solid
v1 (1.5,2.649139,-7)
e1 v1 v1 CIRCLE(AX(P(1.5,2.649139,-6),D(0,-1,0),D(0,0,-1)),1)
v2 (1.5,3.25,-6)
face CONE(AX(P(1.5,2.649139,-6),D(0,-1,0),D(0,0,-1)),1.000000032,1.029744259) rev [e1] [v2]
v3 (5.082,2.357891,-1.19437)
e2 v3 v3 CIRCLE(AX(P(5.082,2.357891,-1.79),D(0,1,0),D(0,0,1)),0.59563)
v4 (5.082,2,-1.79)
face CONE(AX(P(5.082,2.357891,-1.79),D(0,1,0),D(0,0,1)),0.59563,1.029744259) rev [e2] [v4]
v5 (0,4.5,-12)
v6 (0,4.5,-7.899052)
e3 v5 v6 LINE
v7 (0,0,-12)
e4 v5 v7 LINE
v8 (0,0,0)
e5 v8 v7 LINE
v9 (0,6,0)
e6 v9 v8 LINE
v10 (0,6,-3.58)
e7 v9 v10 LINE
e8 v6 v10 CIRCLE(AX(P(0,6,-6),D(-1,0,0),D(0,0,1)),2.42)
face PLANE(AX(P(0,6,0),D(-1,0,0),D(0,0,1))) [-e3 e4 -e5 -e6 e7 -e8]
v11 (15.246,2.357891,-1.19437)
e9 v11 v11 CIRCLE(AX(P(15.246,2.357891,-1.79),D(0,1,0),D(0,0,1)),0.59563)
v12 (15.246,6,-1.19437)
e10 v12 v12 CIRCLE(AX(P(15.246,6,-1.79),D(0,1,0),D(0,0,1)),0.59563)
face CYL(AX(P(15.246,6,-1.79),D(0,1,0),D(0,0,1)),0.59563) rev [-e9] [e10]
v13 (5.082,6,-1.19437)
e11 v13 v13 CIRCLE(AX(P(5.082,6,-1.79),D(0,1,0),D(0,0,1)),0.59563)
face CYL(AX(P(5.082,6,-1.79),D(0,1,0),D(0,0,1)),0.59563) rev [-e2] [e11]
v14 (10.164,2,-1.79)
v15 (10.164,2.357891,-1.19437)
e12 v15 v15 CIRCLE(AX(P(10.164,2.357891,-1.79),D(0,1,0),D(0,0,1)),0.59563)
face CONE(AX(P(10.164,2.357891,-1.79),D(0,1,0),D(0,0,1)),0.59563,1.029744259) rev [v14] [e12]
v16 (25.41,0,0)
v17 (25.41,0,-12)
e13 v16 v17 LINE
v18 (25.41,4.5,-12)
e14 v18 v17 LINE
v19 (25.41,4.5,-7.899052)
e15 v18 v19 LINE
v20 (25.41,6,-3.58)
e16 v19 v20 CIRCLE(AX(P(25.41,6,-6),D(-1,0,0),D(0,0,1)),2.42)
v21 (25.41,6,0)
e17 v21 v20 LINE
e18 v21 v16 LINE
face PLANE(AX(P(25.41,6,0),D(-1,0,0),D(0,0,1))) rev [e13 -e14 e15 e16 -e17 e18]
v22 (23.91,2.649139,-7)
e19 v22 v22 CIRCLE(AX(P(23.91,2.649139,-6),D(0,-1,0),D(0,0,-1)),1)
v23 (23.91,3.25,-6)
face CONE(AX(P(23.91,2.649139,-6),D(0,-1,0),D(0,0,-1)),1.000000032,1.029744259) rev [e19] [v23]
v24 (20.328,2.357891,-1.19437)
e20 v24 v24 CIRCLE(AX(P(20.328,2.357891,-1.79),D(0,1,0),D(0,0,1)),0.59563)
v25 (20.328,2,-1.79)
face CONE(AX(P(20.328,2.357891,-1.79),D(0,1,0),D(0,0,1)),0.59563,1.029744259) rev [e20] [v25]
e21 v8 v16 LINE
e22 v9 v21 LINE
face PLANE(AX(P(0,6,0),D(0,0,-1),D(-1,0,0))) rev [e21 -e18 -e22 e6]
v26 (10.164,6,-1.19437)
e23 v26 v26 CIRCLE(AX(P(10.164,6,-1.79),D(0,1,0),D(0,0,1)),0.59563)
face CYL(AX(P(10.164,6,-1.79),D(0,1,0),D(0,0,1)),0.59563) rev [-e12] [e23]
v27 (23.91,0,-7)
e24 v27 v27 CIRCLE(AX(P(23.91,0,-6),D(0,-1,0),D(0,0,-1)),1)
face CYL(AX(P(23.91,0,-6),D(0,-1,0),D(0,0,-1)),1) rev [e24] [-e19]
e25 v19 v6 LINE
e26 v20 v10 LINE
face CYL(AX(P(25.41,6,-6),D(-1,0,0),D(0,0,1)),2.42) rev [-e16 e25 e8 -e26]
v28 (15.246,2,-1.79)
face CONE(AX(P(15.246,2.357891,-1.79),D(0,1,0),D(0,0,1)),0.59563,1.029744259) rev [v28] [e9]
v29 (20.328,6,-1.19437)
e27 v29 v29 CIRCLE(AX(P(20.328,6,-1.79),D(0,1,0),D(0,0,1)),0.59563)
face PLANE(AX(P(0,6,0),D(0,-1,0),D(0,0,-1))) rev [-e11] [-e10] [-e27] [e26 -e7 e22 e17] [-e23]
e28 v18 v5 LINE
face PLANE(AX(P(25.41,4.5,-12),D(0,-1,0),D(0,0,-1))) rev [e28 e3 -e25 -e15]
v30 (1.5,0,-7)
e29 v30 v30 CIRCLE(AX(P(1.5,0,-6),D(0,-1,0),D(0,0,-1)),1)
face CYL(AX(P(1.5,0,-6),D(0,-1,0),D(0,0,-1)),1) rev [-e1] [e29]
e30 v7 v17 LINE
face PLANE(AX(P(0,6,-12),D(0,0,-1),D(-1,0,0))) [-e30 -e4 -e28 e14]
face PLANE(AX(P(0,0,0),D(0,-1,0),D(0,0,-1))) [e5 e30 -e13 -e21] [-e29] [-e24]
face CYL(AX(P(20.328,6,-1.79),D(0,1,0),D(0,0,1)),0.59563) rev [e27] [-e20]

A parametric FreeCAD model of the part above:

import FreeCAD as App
import Part
import Sketcher

V = App.Vector

doc = App.newDocument("Part")
params = doc.addObject("Spreadsheet::Sheet", "Params")
for row, (alias, value) in enumerate([
    ("sketch1_height", "12 mm"),
    ("sketch1_width", "25.41 mm"),
    ("pad1_length", "6 mm"),
    ("sketch2_diameter", "4.84 mm"),
    ("pocket1_length", "25.41 mm"),
    ("sketch3_width", "1.5 mm"),
    ("pocket2_length", "25.41 mm"),
    ("sketch4_diameter", "2 mm"),
    ("hole_diameter", "2 mm"),
    ("hole_depth", "2.649139 mm"),
    ("hole2_diameter", "1.19126 mm"),
    ("hole2_depth", "3.642109 mm"),
], start=1):
    params.set(f"A{row}", alias)
    params.set(f"B{row}", "=" + value)
    params.setAlias(f"B{row}", alias)

body = doc.addObject("PartDesign::Body", "Body")

# Sketch on XZ plane
sketch1 = body.newObject("Sketcher::SketchObject", "Sketch")
sketch1.AttachmentSupport = (doc.getObject("XZ_Plane"), [""])
sketch1.MapMode = "FlatFace"
sketch1.addGeometry(Part.LineSegment(V(0, -12, 0), V(0, 0, 0)), False)
sketch1.addGeometry(Part.LineSegment(V(0, 0, 0), V(25, 0, 0)), False)
sketch1.addGeometry(Part.LineSegment(V(25, 0, 0), V(25, -12, 0)), False)
sketch1.addGeometry(Part.LineSegment(V(25, -12, 0), V(0, -12, 0)), False)
sketch1.addConstraint(Sketcher.Constraint("Coincident", 0, 2, 1, 1))
sketch1.addConstraint(Sketcher.Constraint("Coincident", 1, 2, 2, 1))
sketch1.addConstraint(Sketcher.Constraint("Coincident", 2, 2, 3, 1))
sketch1.addConstraint(Sketcher.Constraint("Coincident", 3, 2, 0, 1))
sketch1.addConstraint(Sketcher.Constraint("Vertical", 0))
sketch1.addConstraint(Sketcher.Constraint("Horizontal", 1))
sketch1.addConstraint(Sketcher.Constraint("Vertical", 2))
sketch1.addConstraint(Sketcher.Constraint("Horizontal", 3))
sketch1.addConstraint(Sketcher.Constraint("Coincident", 0, 2, -1, 1))
sketch1.addConstraint(Sketcher.Constraint("DistanceY", 0, 1, 0, 2, 12.0))
sketch1.addConstraint(Sketcher.Constraint("DistanceX", 1, 1, 1, 2, 25.41))
sketch1.setExpression("Constraints[9]", "Params.sketch1_height")
sketch1.setExpression("Constraints[10]", "Params.sketch1_width")
pad1 = body.newObject("PartDesign::Pad", "Pad")
pad1.Profile = sketch1
pad1.setExpression("Length", "Params.pad1_length")
pad1.Reversed = True

# Sketch on YZ plane
sketch2 = body.newObject("Sketcher::SketchObject", "Sketch001")
sketch2.AttachmentSupport = (doc.getObject("YZ_Plane"), [""])
sketch2.MapMode = "FlatFace"
sketch2.addGeometry(Part.Circle(V(6, -6, 0), V(0, 0, 1), 2.4), False)
sketch2.addConstraint(Sketcher.Constraint("Diameter", 0, 4.84))
sketch2.addConstraint(Sketcher.Constraint("DistanceX", -1, 1, 0, 3, 6.0))
sketch2.addConstraint(Sketcher.Constraint("DistanceY", 0, 3, -1, 1, 6.0))
sketch2.setExpression("Constraints[0]", "Params.sketch2_diameter")
pocket1 = body.newObject("PartDesign::Pocket", "Pocket")
pocket1.Profile = sketch2
pocket1.setExpression("Length", "Params.pocket1_length")
pocket1.Reversed = True

# Sketch on YZ plane
sketch3 = body.newObject("Sketcher::SketchObject", "Sketch002")
sketch3.AttachmentSupport = (doc.getObject("YZ_Plane"), [""])
sketch3.MapMode = "FlatFace"
sketch3.addGeometry(Part.LineSegment(V(6, -12, 0), V(4.5, -12, 0)), False)
sketch3.addGeometry(Part.LineSegment(V(4.5, -12, 0), V(4.5, -7.5, 0)), False)
sketch3.addGeometry(Part.LineSegment(V(4.5, -7.5, 0), V(6, -7.5, 0)), False)
sketch3.addGeometry(Part.LineSegment(V(6, -7.5, 0), V(6, -12, 0)), False)
sketch3.addConstraint(Sketcher.Constraint("Coincident", 0, 2, 1, 1))
sketch3.addConstraint(Sketcher.Constraint("Coincident", 1, 2, 2, 1))
sketch3.addConstraint(Sketcher.Constraint("Coincident", 2, 2, 3, 1))
sketch3.addConstraint(Sketcher.Constraint("Coincident", 3, 2, 0, 1))
sketch3.addConstraint(Sketcher.Constraint("Horizontal", 0))
sketch3.addConstraint(Sketcher.Constraint("Vertical", 1))
sketch3.addConstraint(Sketcher.Constraint("Horizontal", 2))
sketch3.addConstraint(Sketcher.Constraint("Vertical", 3))
sketch3.addConstraint(Sketcher.Constraint("DistanceX", 0, 2, 0, 1, 1.5))
sketch3.addConstraint(Sketcher.Constraint("DistanceY", 0, 2, -1, 1, 12.0))
sketch3.addConstraint(Sketcher.Constraint("DistanceX", -1, 1, 2, 2, 6.0))
sketch3.addConstraint(Sketcher.Constraint("DistanceY", 1, 1, 1, 2, 4.522419))
sketch3.setExpression("Constraints[8]", "Params.sketch3_width")
pocket2 = body.newObject("PartDesign::Pocket", "Pocket001")
pocket2.Profile = sketch3
pocket2.setExpression("Length", "Params.pocket2_length")
pocket2.Reversed = True

# Sketch on XZ plane
sketch4 = body.newObject("Sketcher::SketchObject", "Sketch003")
sketch4.AttachmentSupport = (doc.getObject("XZ_Plane"), [""])
sketch4.MapMode = "FlatFace"
sketch4.addGeometry(Part.Circle(V(23.9, -6, 0), V(0, 0, 1), 1), False)
sketch4.addGeometry(Part.Circle(V(1.5, -6, 0), V(0, 0, 1), 1), False)
sketch4.addConstraint(Sketcher.Constraint("Equal", 0, 1))
sketch4.addConstraint(Sketcher.Constraint("Horizontal", 0, 3, 1, 3))
sketch4.addConstraint(Sketcher.Constraint("Diameter", 0, 2.0))
sketch4.addConstraint(Sketcher.Constraint("DistanceY", 0, 3, -1, 1, 6.0))
sketch4.addConstraint(Sketcher.Constraint("DistanceX", -1, 1, 1, 3, 1.5))
sketch4.addConstraint(Sketcher.Constraint("DistanceX", -1, 1, 0, 3, 23.91))
sketch4.setExpression("Constraints[2]", "Params.sketch4_diameter")
doc.recompute()
hole = body.newObject("PartDesign::Hole", "Hole")
hole.Profile = sketch4
hole.ThreadType = "None"
hole.setExpression("Diameter", "Params.hole_diameter")
hole.DepthType = "Dimension"
hole.setExpression("Depth", "Params.hole_depth")
hole.DrillPoint = "Angled"
hole.DrillPointAngle = 118

# Sketch on XZ plane
sketch5 = body.newObject("Sketcher::SketchObject", "Sketch004")
sketch5.AttachmentSupport = (doc.getObject("XZ_Plane"), [""])
sketch5.MapMode = "FlatFace"
sketch5.AttachmentOffset = App.Placement(V(0, 0, -6), App.Rotation())
sketch5.addGeometry(Part.Circle(V(5.1, -1.8, 0), V(0, 0, 1), 0.6), False)
sketch5.addGeometry(Part.Circle(V(10.2, -1.8, 0), V(0, 0, 1), 0.6), False)
sketch5.addGeometry(Part.Circle(V(15.2, -1.8, 0), V(0, 0, 1), 0.6), False)
sketch5.addGeometry(Part.Circle(V(20.3, -1.8, 0), V(0, 0, 1), 0.6), False)
sketch5.addConstraint(Sketcher.Constraint("Equal", 0, 1))
sketch5.addConstraint(Sketcher.Constraint("Equal", 1, 2))
sketch5.addConstraint(Sketcher.Constraint("Equal", 2, 3))
sketch5.addConstraint(Sketcher.Constraint("Horizontal", 0, 3, 1, 3))
sketch5.addConstraint(Sketcher.Constraint("Horizontal", 1, 3, 2, 3))
sketch5.addConstraint(Sketcher.Constraint("Horizontal", 2, 3, 3, 3))
sketch5.addConstraint(Sketcher.Constraint("Diameter", 0, 1.19126))
sketch5.addConstraint(Sketcher.Constraint("DistanceY", 0, 3, -1, 1, 1.79))
sketch5.addConstraint(Sketcher.Constraint("DistanceX", -1, 1, 0, 3, 5.082))
sketch5.addConstraint(Sketcher.Constraint("DistanceX", -1, 1, 1, 3, 10.164))
sketch5.addConstraint(Sketcher.Constraint("DistanceX", -1, 1, 2, 3, 15.246))
sketch5.addConstraint(Sketcher.Constraint("DistanceX", -1, 1, 3, 3, 20.328))
doc.recompute()
hole2 = body.newObject("PartDesign::Hole", "Hole001")
hole2.Profile = sketch5
hole2.ThreadType = "None"
hole2.setExpression("Diameter", "Params.hole2_diameter")
hole2.DepthType = "Dimension"
hole2.setExpression("Depth", "Params.hole2_depth")
hole2.DrillPoint = "Angled"
hole2.DrillPointAngle = 118
hole2.Reversed = True

doc.recompute()
